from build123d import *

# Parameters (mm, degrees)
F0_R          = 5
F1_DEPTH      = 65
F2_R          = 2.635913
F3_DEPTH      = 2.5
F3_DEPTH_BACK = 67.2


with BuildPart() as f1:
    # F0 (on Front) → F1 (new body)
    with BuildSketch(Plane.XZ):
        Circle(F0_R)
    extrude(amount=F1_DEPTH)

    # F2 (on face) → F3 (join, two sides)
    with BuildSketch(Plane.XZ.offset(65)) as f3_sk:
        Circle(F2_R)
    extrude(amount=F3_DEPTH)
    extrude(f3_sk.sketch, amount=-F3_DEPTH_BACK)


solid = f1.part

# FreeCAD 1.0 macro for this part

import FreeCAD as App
import Part
import Sketcher

V = App.Vector
Q = App.Units.Quantity

doc = App.newDocument("Part")
body = doc.addObject("PartDesign::Body", "Body")

# Sketch on XZ plane
sketch1 = body.newObject("Sketcher::SketchObject", "Sketch")
sketch1.AttachmentSupport = (doc.getObject("XZ_Plane"), [""])
sketch1.MapMode = "FlatFace"
sketch1.addGeometry(Part.Circle(V(0, 0, 0), V(0, 0, 1), 5), False)
sketch1.addConstraint(Sketcher.Constraint("Coincident", 0, 3, -1, 1))
sketch1.addConstraint(Sketcher.Constraint("Diameter", 0, Q("10 mm")))
pad1 = body.newObject("PartDesign::Pad", "Pad")
pad1.Profile = sketch1
pad1.Length = 65

# Sketch on XZ plane
sketch2 = body.newObject("Sketcher::SketchObject", "Sketch001")
sketch2.AttachmentSupport = (doc.getObject("XZ_Plane"), [""])
sketch2.MapMode = "FlatFace"
sketch2.AttachmentOffset = App.Placement(V(0, 0, 65), App.Rotation())
sketch2.addGeometry(Part.Circle(V(0, 0, 0), V(0, 0, 1), 2.635913), False)
sketch2.addConstraint(Sketcher.Constraint("Coincident", 0, 3, -1, 1))
sketch2.addConstraint(Sketcher.Constraint("Diameter", 0, Q("5.271826 mm")))
pad2 = body.newObject("PartDesign::Pad", "Pad001")
pad2.Profile = sketch2
pad2.Type = "TwoLengths"
pad2.Length = 2.5
pad2.Length2 = 67.2

doc.recompute()
